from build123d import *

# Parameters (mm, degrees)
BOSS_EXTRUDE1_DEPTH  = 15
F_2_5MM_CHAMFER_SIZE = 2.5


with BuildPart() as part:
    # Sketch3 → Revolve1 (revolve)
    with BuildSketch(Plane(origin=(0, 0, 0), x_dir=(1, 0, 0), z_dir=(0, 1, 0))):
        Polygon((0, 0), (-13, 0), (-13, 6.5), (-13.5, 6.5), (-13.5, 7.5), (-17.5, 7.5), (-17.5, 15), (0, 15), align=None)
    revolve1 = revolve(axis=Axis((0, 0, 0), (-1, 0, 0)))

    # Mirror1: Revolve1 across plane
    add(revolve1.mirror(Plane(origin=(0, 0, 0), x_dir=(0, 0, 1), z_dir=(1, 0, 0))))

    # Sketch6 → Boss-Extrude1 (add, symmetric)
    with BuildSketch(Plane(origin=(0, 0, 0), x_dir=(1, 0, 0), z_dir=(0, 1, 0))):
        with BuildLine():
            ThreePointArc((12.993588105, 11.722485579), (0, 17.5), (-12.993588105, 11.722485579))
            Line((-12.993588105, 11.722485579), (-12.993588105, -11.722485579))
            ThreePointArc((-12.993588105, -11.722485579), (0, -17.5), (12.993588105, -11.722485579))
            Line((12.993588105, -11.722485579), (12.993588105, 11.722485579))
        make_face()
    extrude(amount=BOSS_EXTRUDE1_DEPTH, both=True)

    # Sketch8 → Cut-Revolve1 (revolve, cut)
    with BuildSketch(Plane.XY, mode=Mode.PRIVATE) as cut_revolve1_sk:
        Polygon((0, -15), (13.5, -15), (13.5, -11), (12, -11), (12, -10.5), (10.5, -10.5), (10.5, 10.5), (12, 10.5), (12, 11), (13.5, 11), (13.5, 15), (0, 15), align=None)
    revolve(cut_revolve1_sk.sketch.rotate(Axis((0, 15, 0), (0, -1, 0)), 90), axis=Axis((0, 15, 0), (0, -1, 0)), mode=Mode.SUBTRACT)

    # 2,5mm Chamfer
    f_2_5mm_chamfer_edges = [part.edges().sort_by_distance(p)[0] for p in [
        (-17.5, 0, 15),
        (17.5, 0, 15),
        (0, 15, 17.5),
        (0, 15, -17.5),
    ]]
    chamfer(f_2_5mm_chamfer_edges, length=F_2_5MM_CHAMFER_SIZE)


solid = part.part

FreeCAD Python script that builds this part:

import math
import FreeCAD as App
import Part
import Sketcher


def edges_at(feature, points):
    """Names of the edges that pass closest to the given points."""
    edges = feature.Shape.Edges
    near = lambda p: min(range(len(edges)), key=lambda i: edges[i].distToShape(Part.Vertex(*p))[0])
    return sorted({f"Edge{near(p) + 1}" for p in points})


def add_polygon(sketch, points):
    """Adds a closed chain of lines whose ends are joined by coincident constraints."""
    first, n = sketch.GeometryCount, len(points)
    for a, b in zip(points, points[1:] + points[:1]):
        sketch.addGeometry(Part.LineSegment(App.Vector(*a, 0), App.Vector(*b, 0)), False)
    for i in range(n):
        sketch.addConstraint(Sketcher.Constraint("Coincident", first + i, 2, first + (i + 1) % n, 1))

doc = App.newDocument("Part")
body = doc.addObject("PartDesign::Body", "Body")

# Sketch on XZ plane
sketch1 = body.newObject("Sketcher::SketchObject", "Sketch")
sketch1.AttachmentSupport = (doc.getObject("XZ_Plane"), [""])
sketch1.MapMode = "FlatFace"
add_polygon(sketch1, [(-13, 0), (0, 0), (0, -15), (-17.5, -15), (-17.5, -7.5), (-13.5, -7.5), (-13.5, -6.5), (-13, -6.5)])  # lines 0-7
sketch1.addConstraint([
    Sketcher.Constraint("Horizontal", 0),
    Sketcher.Constraint("Vertical", 1),
    Sketcher.Constraint("Horizontal", 2),
    Sketcher.Constraint("Vertical", 3),
    Sketcher.Constraint("Horizontal", 4),
    Sketcher.Constraint("Vertical", 5),
    Sketcher.Constraint("Horizontal", 6),
    Sketcher.Constraint("Vertical", 7),
    Sketcher.Constraint("Coincident", 0, 2, -1, 1),
    Sketcher.Constraint("DistanceX", 0, 1, 0, 2, 13.0),
    Sketcher.Constraint("DistanceX", 4, 1, 4, 2, 4.0),
    Sketcher.Constraint("DistanceY", 1, 2, 1, 1, 15.0),
    Sketcher.Constraint("DistanceY", 5, 1, 5, 2, 1.0),
    Sketcher.Constraint("DistanceX", 2, 2, 2, 1, 17.5),
    Sketcher.Constraint("DistanceY", 3, 1, 3, 2, 7.5),
])
revolution = body.newObject("PartDesign::Revolution", "Revolution")
revolution.Profile = sketch1
revolution.ReferenceAxis = (sketch1, ["H_Axis"])
revolution.Angle = 360
doc.recompute()

mirrored = body.newObject("PartDesign::Mirrored", "Mirrored")
mirrored.Originals = [revolution]
mirrored.MirrorPlane = (doc.getObject("YZ_Plane"), [""])
body.Tip = mirrored

# Sketch on XZ plane
sketch2 = body.newObject("Sketcher::SketchObject", "Sketch001")
sketch2.AttachmentSupport = (doc.getObject("XZ_Plane"), [""])
sketch2.MapMode = "FlatFace"
sketch2.addGeometry([
    Part.ArcOfCircle(Part.Circle(App.Vector(0, 0, 0), App.Vector(0, 0, 1), 17.5), math.radians(-137.944024), math.radians(-42.055976)),
    Part.LineSegment(App.Vector(-12.993588, -11.722486, 0), App.Vector(-12.993588, 11.722486, 0)),
    Part.ArcOfCircle(Part.Circle(App.Vector(0, 0, 0), App.Vector(0, 0, 1), 17.5), math.radians(42.055976), math.radians(137.944024)),
    Part.LineSegment(App.Vector(12.993588, 11.722486, 0), App.Vector(12.993588, -11.722486, 0)),
], False)
sketch2.addConstraint([
    Sketcher.Constraint("Coincident", 0, 1, 1, 1),
    Sketcher.Constraint("Coincident", 1, 2, 2, 2),
    Sketcher.Constraint("Coincident", 2, 1, 3, 1),
    Sketcher.Constraint("Coincident", 3, 2, 0, 2),
    Sketcher.Constraint("Vertical", 1),
    Sketcher.Constraint("Vertical", 3),
    Sketcher.Constraint("Coincident", 0, 3, -1, 1),
    Sketcher.Constraint("Coincident", 2, 3, -1, 1),
    Sketcher.Constraint("Equal", 0, 2),
    Sketcher.Constraint("Horizontal", 1, 2, 2, 1),
    Sketcher.Constraint("Radius", 0, 17.5),
    Sketcher.Constraint("DistanceY", 1, 1, 1, 2, 23.444971),
])
pad1 = body.newObject("PartDesign::Pad", "Pad")
pad1.Profile = sketch2
pad1.Length = 30
pad1.Midplane = True

# Sketch on XY plane
sketch3 = body.newObject("Sketcher::SketchObject", "Sketch002")
sketch3.AttachmentSupport = (doc.getObject("XY_Plane"), [""])
sketch3.MapMode = "FlatFace"
add_polygon(sketch3, [(0, -15), (13.5, -15), (13.5, -11), (12, -11), (12, -10.5), (10.5, -10.5), (10.5, 10.5), (12, 10.5), (12, 11), (13.5, 11), (13.5, 15), (0, 15)])  # lines 0-11
sketch3.addConstraint([
    Sketcher.Constraint("Horizontal", 0),
    Sketcher.Constraint("Vertical", 1),
    Sketcher.Constraint("Horizontal", 2),
    Sketcher.Constraint("Vertical", 3),
    Sketcher.Constraint("Horizontal", 4),
    Sketcher.Constraint("Vertical", 5),
    Sketcher.Constraint("Horizontal", 6),
    Sketcher.Constraint("Vertical", 7),
    Sketcher.Constraint("Horizontal", 8),
    Sketcher.Constraint("Vertical", 9),
    Sketcher.Constraint("Horizontal", 10),
    Sketcher.Constraint("Vertical", 11),
    Sketcher.Constraint("Symmetric", 10, 2, 11, 2, -1, 1),
    Sketcher.Constraint("Symmetric", 3, 2, 6, 2, -1),
    Sketcher.Constraint("Symmetric", 1, 2, 8, 2, -1),
    Sketcher.Constraint("Equal", 2, 4),
    Sketcher.Constraint("DistanceY", 1, 1, 1, 2, 4.0),
    Sketcher.Constraint("DistanceY", 5, 1, 5, 2, 21.0),
    Sketcher.Constraint("DistanceY", 11, 2, 11, 1, 30.0),
    Sketcher.Constraint("DistanceX", 0, 1, 0, 2, 13.5),
    Sketcher.Constraint("DistanceX", 2, 2, 2, 1, 1.5),
])
groove = body.newObject("PartDesign::Groove", "Groove")
groove.Profile = sketch3
groove.ReferenceAxis = (sketch3, ["V_Axis"])
groove.Angle = 360
doc.recompute()

chamfer = body.newObject("PartDesign::Chamfer", "Chamfer")
chamfer.Base = (groove, edges_at(groove, [
    (-17.5, 0, 15),
    (17.5, 0, 15),
    (0, 15, 17.5),
    (0, 15, -17.5),
]))
chamfer.Size = 2.5

doc.recompute()
